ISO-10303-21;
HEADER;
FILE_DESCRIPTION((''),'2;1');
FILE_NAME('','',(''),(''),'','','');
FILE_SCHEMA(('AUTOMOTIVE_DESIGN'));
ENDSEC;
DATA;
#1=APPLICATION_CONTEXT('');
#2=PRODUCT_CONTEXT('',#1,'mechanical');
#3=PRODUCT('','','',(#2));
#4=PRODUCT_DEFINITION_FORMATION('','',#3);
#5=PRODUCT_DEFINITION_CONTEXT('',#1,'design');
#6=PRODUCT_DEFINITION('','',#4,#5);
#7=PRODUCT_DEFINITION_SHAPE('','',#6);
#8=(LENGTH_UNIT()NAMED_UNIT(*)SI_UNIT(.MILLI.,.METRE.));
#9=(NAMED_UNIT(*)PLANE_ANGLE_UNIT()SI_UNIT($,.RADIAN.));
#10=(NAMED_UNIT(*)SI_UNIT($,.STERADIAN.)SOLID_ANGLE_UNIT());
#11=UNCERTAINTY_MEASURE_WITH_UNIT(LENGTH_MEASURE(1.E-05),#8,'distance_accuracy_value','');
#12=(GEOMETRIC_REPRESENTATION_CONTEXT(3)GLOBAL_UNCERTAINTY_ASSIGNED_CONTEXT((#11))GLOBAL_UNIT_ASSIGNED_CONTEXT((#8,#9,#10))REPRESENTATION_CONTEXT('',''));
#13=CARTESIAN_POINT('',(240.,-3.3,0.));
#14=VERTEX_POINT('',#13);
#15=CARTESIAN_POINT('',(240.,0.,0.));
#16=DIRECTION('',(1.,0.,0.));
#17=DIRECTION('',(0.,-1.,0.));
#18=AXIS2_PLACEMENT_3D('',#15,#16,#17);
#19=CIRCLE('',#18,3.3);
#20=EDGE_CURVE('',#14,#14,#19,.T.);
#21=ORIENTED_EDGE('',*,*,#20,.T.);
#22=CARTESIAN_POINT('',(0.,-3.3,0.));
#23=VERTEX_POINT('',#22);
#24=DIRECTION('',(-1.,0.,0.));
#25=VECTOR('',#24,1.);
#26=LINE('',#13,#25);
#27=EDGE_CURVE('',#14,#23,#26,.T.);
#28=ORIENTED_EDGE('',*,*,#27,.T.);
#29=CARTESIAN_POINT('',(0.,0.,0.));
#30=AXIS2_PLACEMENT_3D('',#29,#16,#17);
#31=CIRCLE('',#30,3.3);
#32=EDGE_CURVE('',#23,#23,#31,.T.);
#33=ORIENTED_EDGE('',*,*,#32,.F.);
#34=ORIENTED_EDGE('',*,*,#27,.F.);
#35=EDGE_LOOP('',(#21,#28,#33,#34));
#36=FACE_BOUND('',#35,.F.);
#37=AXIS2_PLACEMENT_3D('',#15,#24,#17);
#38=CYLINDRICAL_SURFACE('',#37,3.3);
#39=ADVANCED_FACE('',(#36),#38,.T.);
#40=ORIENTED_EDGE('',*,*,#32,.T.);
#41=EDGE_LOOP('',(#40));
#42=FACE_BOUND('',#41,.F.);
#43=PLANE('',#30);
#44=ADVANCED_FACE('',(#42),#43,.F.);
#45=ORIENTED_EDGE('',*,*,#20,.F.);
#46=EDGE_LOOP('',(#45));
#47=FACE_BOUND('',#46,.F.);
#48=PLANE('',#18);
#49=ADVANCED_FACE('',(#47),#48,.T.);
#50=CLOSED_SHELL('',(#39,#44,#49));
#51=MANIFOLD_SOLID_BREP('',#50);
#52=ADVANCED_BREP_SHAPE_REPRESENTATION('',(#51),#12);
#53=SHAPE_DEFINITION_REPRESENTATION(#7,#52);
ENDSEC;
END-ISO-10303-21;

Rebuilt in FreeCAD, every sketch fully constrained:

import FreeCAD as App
import Part
import Sketcher
from FreeCAD import Vector


def add_polygon(sketch, points):
    """Adds a closed chain of lines whose ends are joined by coincident constraints."""
    first, n = sketch.GeometryCount, len(points)
    for a, b in zip(points, points[1:] + points[:1]):
        sketch.addGeometry(Part.LineSegment(App.Vector(*a, 0), App.Vector(*b, 0)), False)
    for i in range(n):
        sketch.addConstraint(Sketcher.Constraint("Coincident", first + i, 2, first + (i + 1) % n, 1))

doc = App.newDocument("Part")
params = doc.addObject("Spreadsheet::Sheet", "Params")
for row, (alias, value) in enumerate([
    ("sketch1_width", "240 mm"),
    ("sketch1_height", "3.3 mm"),
    ("revolution_angle", "360 deg"),
], start=1):
    params.set(f"A{row}", alias)
    params.set(f"B{row}", "=" + value)
    params.setAlias(f"B{row}", alias)

body = doc.addObject("PartDesign::Body", "Body")

# Sketch on XY plane
sketch1 = doc.addObject("Sketcher::SketchObject", "Sketch")
body.addObject(sketch1)
sketch1.AttachmentSupport = (doc.XY_Plane, [""])
sketch1.MapMode = "FlatFace"
add_polygon(sketch1, [(240, 0), (0, 0), (0, -3.3), (240, -3.3)])  # lines 0-3
sketch1.addConstraint(Sketcher.Constraint("Horizontal", 0))
sketch1.addConstraint(Sketcher.Constraint("Vertical", 1))
sketch1.addConstraint(Sketcher.Constraint("Horizontal", 2))
sketch1.addConstraint(Sketcher.Constraint("Vertical", 3))
sketch1.addConstraint(Sketcher.Constraint("Coincident", 0, 2, -1, 1))
sketch1.addConstraint(Sketcher.Constraint("DistanceX", 0, 2, 0, 1, 240.0))
sketch1.addConstraint(Sketcher.Constraint("DistanceY", 1, 2, 1, 1, 3.3))
sketch1.setExpression("Constraints[9]", "Params.sketch1_width")
sketch1.setExpression("Constraints[10]", "Params.sketch1_height")
revolution = doc.addObject("PartDesign::Revolution", "Revolution")
body.addObject(revolution)
revolution.Profile = sketch1
revolution.ReferenceAxis = (sketch1, ["H_Axis"])
revolution.setExpression("Angle", "Params.revolution_angle")

doc.recompute()
